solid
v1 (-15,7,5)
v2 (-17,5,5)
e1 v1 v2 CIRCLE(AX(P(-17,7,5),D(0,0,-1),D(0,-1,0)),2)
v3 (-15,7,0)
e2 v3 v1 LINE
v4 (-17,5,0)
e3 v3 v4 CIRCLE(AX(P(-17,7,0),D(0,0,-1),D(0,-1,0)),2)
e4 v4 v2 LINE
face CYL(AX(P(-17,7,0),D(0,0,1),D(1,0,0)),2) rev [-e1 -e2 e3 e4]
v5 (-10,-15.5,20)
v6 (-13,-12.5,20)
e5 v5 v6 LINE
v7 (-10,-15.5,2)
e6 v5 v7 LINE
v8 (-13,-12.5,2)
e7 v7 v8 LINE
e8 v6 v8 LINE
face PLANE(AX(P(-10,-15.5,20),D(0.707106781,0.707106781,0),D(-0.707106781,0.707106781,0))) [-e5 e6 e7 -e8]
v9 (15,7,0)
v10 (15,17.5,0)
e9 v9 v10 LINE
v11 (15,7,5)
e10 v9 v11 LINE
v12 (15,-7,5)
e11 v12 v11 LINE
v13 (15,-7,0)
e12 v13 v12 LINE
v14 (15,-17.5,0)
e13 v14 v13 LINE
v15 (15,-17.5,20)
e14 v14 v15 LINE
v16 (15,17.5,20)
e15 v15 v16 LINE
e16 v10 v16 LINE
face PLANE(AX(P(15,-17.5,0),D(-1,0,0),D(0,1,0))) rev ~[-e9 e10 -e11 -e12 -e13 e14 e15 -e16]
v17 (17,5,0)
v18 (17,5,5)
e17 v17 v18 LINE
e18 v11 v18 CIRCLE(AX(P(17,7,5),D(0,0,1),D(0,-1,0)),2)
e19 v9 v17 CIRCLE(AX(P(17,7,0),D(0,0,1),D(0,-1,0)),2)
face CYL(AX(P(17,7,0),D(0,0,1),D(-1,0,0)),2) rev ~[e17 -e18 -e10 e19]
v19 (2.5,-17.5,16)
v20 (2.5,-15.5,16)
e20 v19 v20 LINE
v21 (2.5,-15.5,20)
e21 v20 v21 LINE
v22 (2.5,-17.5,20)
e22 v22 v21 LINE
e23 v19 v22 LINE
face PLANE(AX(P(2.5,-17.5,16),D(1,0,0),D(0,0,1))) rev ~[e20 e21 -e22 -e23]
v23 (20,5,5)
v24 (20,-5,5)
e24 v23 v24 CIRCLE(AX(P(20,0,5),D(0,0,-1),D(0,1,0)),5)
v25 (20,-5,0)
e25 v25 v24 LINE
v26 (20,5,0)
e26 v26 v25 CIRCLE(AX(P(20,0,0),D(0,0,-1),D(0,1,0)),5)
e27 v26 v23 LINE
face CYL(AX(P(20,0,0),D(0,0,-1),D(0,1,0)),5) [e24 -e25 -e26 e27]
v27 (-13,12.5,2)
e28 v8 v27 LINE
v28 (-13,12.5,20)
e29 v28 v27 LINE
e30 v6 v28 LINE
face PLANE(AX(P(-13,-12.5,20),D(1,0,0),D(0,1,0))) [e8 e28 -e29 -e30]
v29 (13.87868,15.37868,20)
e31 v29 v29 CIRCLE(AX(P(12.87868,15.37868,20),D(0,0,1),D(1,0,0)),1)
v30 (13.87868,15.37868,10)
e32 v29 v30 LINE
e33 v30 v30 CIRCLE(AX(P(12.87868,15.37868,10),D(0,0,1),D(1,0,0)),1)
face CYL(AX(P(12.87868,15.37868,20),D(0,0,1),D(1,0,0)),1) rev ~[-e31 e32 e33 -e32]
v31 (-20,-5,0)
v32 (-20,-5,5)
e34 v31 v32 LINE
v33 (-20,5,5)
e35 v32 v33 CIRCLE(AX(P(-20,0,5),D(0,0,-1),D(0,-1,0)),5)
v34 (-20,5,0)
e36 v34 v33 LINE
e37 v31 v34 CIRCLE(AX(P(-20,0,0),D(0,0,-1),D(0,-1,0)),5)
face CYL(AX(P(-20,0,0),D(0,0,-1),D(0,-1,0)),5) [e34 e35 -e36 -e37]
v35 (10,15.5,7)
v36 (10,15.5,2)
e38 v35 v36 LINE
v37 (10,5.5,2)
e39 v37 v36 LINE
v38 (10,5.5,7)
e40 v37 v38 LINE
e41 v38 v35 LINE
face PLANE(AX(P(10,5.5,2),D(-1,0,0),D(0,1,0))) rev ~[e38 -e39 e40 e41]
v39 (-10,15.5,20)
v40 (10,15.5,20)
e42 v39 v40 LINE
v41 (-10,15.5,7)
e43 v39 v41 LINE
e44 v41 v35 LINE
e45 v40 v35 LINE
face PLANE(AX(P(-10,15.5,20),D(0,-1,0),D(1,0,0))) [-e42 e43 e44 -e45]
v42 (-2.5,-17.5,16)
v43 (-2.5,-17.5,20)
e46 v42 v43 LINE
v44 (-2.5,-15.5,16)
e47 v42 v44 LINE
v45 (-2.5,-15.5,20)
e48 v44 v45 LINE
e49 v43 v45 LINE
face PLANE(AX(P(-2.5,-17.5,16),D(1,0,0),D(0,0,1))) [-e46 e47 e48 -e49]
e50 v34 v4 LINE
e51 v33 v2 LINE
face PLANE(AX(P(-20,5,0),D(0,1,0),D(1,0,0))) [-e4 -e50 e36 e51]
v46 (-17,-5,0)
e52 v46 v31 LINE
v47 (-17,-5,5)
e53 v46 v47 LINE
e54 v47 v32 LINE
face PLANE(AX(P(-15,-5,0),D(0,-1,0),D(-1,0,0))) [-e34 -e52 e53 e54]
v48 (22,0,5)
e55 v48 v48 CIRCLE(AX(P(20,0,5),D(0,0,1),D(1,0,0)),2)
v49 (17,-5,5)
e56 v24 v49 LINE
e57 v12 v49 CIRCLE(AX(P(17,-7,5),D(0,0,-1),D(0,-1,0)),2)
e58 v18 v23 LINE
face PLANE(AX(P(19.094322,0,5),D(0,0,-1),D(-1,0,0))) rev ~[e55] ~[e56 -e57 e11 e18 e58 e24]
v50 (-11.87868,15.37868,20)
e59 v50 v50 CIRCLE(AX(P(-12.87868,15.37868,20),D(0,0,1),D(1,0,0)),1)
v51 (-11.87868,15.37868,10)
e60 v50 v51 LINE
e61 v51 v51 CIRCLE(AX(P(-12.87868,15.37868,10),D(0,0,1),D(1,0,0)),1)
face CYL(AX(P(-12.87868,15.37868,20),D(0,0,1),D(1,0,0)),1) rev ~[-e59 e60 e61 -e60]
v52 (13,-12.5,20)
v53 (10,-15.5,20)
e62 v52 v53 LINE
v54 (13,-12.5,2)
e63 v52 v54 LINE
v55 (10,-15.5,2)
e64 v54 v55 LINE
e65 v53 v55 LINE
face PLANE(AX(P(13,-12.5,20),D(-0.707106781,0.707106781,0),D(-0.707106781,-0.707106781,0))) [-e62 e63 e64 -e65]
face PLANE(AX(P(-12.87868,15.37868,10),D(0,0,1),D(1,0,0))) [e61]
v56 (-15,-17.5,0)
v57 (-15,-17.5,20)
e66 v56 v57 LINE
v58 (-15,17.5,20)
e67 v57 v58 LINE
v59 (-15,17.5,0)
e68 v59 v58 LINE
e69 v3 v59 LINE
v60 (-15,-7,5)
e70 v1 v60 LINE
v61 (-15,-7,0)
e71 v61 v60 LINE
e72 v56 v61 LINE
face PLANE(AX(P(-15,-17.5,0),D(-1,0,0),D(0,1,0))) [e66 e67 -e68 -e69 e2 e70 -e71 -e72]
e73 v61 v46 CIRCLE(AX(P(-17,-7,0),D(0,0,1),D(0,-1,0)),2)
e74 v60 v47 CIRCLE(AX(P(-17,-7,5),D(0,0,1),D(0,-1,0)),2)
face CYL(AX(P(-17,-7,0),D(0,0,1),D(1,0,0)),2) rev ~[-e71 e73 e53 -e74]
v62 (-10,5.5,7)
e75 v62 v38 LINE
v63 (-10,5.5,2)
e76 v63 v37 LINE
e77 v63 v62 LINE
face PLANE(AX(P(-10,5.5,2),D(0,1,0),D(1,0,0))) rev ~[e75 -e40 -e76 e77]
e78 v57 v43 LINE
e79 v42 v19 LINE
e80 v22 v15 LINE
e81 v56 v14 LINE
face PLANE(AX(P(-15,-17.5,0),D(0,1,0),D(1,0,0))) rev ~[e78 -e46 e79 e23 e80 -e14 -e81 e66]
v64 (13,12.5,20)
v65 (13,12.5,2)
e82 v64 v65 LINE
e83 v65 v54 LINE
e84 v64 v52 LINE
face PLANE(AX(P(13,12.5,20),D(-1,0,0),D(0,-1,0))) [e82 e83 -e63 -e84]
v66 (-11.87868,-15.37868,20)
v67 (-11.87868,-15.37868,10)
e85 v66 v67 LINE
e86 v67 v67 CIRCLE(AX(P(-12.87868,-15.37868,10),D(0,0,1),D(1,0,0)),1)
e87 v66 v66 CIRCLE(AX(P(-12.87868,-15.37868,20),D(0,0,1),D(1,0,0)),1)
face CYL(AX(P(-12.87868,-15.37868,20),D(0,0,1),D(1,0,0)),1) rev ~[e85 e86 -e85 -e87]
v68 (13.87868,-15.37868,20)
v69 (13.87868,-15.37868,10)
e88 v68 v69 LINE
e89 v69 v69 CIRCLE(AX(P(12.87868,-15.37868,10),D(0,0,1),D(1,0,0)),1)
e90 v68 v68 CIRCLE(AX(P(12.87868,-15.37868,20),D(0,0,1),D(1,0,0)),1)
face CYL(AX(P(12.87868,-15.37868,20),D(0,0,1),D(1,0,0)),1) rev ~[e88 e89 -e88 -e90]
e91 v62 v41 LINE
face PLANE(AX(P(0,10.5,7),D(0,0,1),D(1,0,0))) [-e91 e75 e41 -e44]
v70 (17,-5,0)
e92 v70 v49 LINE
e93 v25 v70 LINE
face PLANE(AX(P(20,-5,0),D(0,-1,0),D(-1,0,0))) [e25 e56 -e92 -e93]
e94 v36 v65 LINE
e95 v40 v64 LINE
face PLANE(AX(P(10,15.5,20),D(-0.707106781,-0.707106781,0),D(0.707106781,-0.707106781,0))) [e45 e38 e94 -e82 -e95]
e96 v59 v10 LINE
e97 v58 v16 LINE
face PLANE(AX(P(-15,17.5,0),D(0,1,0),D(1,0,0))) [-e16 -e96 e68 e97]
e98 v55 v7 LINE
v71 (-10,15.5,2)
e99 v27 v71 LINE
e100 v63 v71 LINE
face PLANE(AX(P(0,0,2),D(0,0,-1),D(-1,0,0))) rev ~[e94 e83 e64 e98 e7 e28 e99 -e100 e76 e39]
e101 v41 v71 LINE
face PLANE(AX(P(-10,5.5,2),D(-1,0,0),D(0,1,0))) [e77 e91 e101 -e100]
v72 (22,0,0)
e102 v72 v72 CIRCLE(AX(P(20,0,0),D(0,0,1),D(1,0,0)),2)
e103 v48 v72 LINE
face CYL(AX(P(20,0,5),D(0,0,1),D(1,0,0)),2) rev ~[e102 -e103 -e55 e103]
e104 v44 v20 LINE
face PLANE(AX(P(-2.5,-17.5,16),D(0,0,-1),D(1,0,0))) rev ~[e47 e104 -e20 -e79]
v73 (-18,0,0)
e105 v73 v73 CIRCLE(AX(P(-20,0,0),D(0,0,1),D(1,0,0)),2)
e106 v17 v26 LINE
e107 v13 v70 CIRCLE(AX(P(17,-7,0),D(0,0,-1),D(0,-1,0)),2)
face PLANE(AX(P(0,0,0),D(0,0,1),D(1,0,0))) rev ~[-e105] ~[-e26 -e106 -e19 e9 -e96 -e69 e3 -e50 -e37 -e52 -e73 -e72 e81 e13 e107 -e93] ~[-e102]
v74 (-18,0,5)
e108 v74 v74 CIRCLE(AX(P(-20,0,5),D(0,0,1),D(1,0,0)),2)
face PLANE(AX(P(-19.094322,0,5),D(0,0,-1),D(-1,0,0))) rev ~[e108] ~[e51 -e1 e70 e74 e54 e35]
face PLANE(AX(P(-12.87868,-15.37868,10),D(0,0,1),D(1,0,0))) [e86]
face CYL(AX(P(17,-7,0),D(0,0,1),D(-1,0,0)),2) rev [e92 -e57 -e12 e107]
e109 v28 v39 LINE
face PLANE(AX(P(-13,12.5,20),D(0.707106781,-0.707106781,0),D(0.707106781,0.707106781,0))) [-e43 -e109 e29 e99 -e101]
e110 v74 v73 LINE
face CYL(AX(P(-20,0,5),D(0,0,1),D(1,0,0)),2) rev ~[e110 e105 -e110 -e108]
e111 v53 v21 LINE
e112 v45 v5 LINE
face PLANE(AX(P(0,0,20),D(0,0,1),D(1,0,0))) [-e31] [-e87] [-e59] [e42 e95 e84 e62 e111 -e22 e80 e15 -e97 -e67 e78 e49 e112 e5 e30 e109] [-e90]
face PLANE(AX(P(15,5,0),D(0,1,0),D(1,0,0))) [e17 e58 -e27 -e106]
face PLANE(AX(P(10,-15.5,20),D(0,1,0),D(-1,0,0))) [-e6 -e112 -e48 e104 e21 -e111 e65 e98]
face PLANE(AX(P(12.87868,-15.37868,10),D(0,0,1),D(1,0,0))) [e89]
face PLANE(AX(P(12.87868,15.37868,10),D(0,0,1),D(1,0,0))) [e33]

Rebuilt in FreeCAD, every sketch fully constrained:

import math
import FreeCAD as App
import Part
import Sketcher

V = App.Vector
Q = App.Units.Quantity


def edges_at(feature, points):
    """Names of the edges that pass closest to the given points."""
    edges = feature.Shape.Edges
    near = lambda p: min(range(len(edges)), key=lambda i: edges[i].distToShape(Part.Vertex(*p))[0])
    return sorted({f"Edge{near(p) + 1}" for p in points})

doc = App.newDocument("Part")
body = doc.addObject("PartDesign::Body", "Body")

# Sketch on XY plane
sketch1 = body.newObject("Sketcher::SketchObject", "Sketch")
sketch1.AttachmentSupport = (doc.getObject("XY_Plane"), [""])
sketch1.MapMode = "FlatFace"
sketch1.addGeometry([
    Part.LineSegment(V(-15, 18, 0), V(-15, -18, 0)),
    Part.LineSegment(V(-15, -18, 0), V(15, -18, 0)),
    Part.LineSegment(V(15, -18, 0), V(15, 18, 0)),
    Part.LineSegment(V(15, 18, 0), V(-15, 18, 0)),
], False)
sketch1.addConstraint([
    Sketcher.Constraint("Coincident", 0, 2, 1, 1),
    Sketcher.Constraint("Coincident", 1, 2, 2, 1),
    Sketcher.Constraint("Coincident", 2, 2, 3, 1),
    Sketcher.Constraint("Coincident", 3, 2, 0, 1),
    Sketcher.Constraint("Vertical", 0),
    Sketcher.Constraint("Horizontal", 1),
    Sketcher.Constraint("Vertical", 2),
    Sketcher.Constraint("Horizontal", 3),
    Sketcher.Constraint("Symmetric", 0, 2, 2, 2, -1, 1),
    Sketcher.Constraint("DistanceX", 1, 1, 1, 2, Q("30 mm")),
    Sketcher.Constraint("DistanceY", 0, 2, 0, 1, Q("35 mm")),
])
pad1 = body.newObject("PartDesign::Pad", "Pad")
pad1.Profile = sketch1
pad1.Length = 20

# Sketch on XY plane
sketch2 = body.newObject("Sketcher::SketchObject", "Sketch001")
sketch2.AttachmentSupport = (doc.getObject("XY_Plane"), [""])
sketch2.MapMode = "FlatFace"
sketch2.AttachmentOffset = App.Placement(V(0, 0, 20), App.Rotation())
sketch2.addGeometry([
    Part.LineSegment(V(10, 15.5, 0), V(-10, 15.5, 0)),  # 0
    Part.LineSegment(V(-10, 15.5, 0), V(-13, 12.5, 0)),  # 1
    Part.LineSegment(V(-13, 12.5, 0), V(-13, -12.5, 0)),  # 2
    Part.LineSegment(V(-13, -12.5, 0), V(-10, -15.5, 0)),  # 3
    Part.LineSegment(V(-10, -15.5, 0), V(10, -15.5, 0)),  # 4
    Part.LineSegment(V(10, -15.5, 0), V(13, -12.5, 0)),  # 5
    Part.LineSegment(V(13, -12.5, 0), V(13, 12.5, 0)),  # 6
    Part.LineSegment(V(13, 12.5, 0), V(10, 15.5, 0)),  # 7
], False)
sketch2.addConstraint([
    Sketcher.Constraint("Coincident", 0, 2, 1, 1),
    Sketcher.Constraint("Coincident", 1, 2, 2, 1),
    Sketcher.Constraint("Coincident", 2, 2, 3, 1),
    Sketcher.Constraint("Coincident", 3, 2, 4, 1),
    Sketcher.Constraint("Coincident", 4, 2, 5, 1),
    Sketcher.Constraint("Coincident", 5, 2, 6, 1),
    Sketcher.Constraint("Coincident", 6, 2, 7, 1),
    Sketcher.Constraint("Coincident", 7, 2, 0, 1),
    Sketcher.Constraint("Horizontal", 0),
    Sketcher.Constraint("Vertical", 2),
    Sketcher.Constraint("Horizontal", 4),
    Sketcher.Constraint("Vertical", 6),
    Sketcher.Constraint("Symmetric", 0, 2, 4, 2, -1, 1),
    Sketcher.Constraint("Symmetric", 1, 2, 5, 2, -1, 1),
    Sketcher.Constraint("Perpendicular", 1, 3),
    Sketcher.Constraint("Perpendicular", 5, 7),
    Sketcher.Constraint("Horizontal", 2, 2, 5, 2),
    Sketcher.Constraint("Horizontal", 1, 2, 6, 2),
    Sketcher.Constraint("Vertical", 0, 2, 3, 2),
    Sketcher.Constraint("DistanceX", 0, 2, 0, 1, Q("20 mm")),
    Sketcher.Constraint("DistanceY", 2, 2, 2, 1, Q("25 mm")),
    Sketcher.Constraint("DistanceX", 1, 2, -1, 1, Q("13 mm")),
])
pocket1 = body.newObject("PartDesign::Pocket", "Pocket")
pocket1.Profile = sketch2
pocket1.Length = 18

# Sketch on XY plane
sketch3 = body.newObject("Sketcher::SketchObject", "Sketch002")
sketch3.AttachmentSupport = (doc.getObject("XY_Plane"), [""])
sketch3.MapMode = "FlatFace"
sketch3.addGeometry([
    Part.LineSegment(V(15, 5, 0), V(20, 5, 0)),  # 0
    Part.ArcOfCircle(Part.Circle(V(20, 0, 0), V(0, 0, 1), 5), math.radians(-90), math.radians(90)),  # 1
    Part.LineSegment(V(20, -5, 0), V(15, -5, 0)),  # 2
    Part.LineSegment(V(15, -5, 0), V(15, 5, 0)),  # 3
    Part.LineSegment(V(-15, 5, 0), V(-15, -5, 0)),  # 4
    Part.LineSegment(V(-15, -5, 0), V(-20, -5, 0)),  # 5
    Part.ArcOfCircle(Part.Circle(V(-20, 0, 0), V(0, 0, 1), 5), math.radians(90), math.radians(270)),  # 6
    Part.LineSegment(V(-20, 5, 0), V(-15, 5, 0)),  # 7
], False)
sketch3.addConstraint([
    Sketcher.Constraint("Tangent", 0, 2, 1, 2),
    Sketcher.Constraint("Tangent", 1, 1, 2, 1),
    Sketcher.Constraint("Coincident", 2, 2, 3, 1),
    Sketcher.Constraint("Coincident", 3, 2, 0, 1),
    Sketcher.Constraint("Coincident", 4, 2, 5, 1),
    Sketcher.Constraint("Tangent", 5, 2, 6, 2),
    Sketcher.Constraint("Tangent", 6, 1, 7, 1),
    Sketcher.Constraint("Coincident", 7, 2, 4, 1),
    Sketcher.Constraint("Horizontal", 0),
    Sketcher.Constraint("Horizontal", 2),
    Sketcher.Constraint("Vertical", 3),
    Sketcher.Constraint("Vertical", 4),
    Sketcher.Constraint("Horizontal", 5),
    Sketcher.Constraint("Horizontal", 7),
    Sketcher.Constraint("Equal", 1, 6),
    Sketcher.Constraint("Symmetric", 1, 3, 6, 3, -1, 1),
    Sketcher.Constraint("Symmetric", 2, 2, 4, 2, -2),
    Sketcher.Constraint("Radius", 1, Q("5 mm")),
    Sketcher.Constraint("DistanceX", 0, 1, 0, 2, Q("5 mm")),
    Sketcher.Constraint("DistanceX", -1, 1, 1, 3, Q("20 mm")),
])
pad2 = body.newObject("PartDesign::Pad", "Pad001")
pad2.Profile = sketch3
pad2.Length = 5

# Sketch on XY plane
sketch4 = body.newObject("Sketcher::SketchObject", "Sketch003")
sketch4.AttachmentSupport = (doc.getObject("XY_Plane"), [""])
sketch4.MapMode = "FlatFace"
sketch4.AttachmentOffset = App.Placement(V(0, 0, 5), App.Rotation())
sketch4.addGeometry(Part.Circle(V(-20, 0, 0), V(0, 0, 1), 2), False)
sketch4.addConstraint([
    Sketcher.Constraint("PointOnObject", 0, 3, -1),
    Sketcher.Constraint("Diameter", 0, Q("4 mm")),
    Sketcher.Constraint("DistanceX", 0, 3, -1, 1, Q("20 mm")),
])
pocket2 = body.newObject("PartDesign::Pocket", "Pocket001")
pocket2.Profile = sketch4
pocket2.Type = "UpToFirst"

# Sketch on XY plane
sketch5 = body.newObject("Sketcher::SketchObject", "Sketch004")
sketch5.AttachmentSupport = (doc.getObject("XY_Plane"), [""])
sketch5.MapMode = "FlatFace"
sketch5.AttachmentOffset = App.Placement(V(0, 0, 5), App.Rotation())
sketch5.addGeometry(Part.Circle(V(20, 0, 0), V(0, 0, 1), 2), False)
sketch5.addConstraint([
    Sketcher.Constraint("PointOnObject", 0, 3, -1),
    Sketcher.Constraint("Diameter", 0, Q("4 mm")),
    Sketcher.Constraint("DistanceX", -1, 1, 0, 3, Q("20 mm")),
])
pocket3 = body.newObject("PartDesign::Pocket", "Pocket002")
pocket3.Profile = sketch5
pocket3.Type = "UpToFirst"

# Sketch on XY plane
sketch6 = body.newObject("Sketcher::SketchObject", "Sketch005")
sketch6.AttachmentSupport = (doc.getObject("XY_Plane"), [""])
sketch6.MapMode = "FlatFace"
sketch6.AttachmentOffset = App.Placement(V(0, 0, 2), App.Rotation())
sketch6.addGeometry([
    Part.LineSegment(V(-10, 16, 0), V(-10, 6, 0)),
    Part.LineSegment(V(-10, 6, 0), V(10, 6, 0)),
    Part.LineSegment(V(10, 6, 0), V(10, 16, 0)),
    Part.LineSegment(V(10, 16, 0), V(-10, 16, 0)),
], False)
sketch6.addConstraint([
    Sketcher.Constraint("Coincident", 0, 2, 1, 1),
    Sketcher.Constraint("Coincident", 1, 2, 2, 1),
    Sketcher.Constraint("Coincident", 2, 2, 3, 1),
    Sketcher.Constraint("Coincident", 3, 2, 0, 1),
    Sketcher.Constraint("Vertical", 0),
    Sketcher.Constraint("Horizontal", 1),
    Sketcher.Constraint("Vertical", 2),
    Sketcher.Constraint("Horizontal", 3),
    Sketcher.Constraint("DistanceX", 1, 1, 1, 2, Q("20 mm")),
    Sketcher.Constraint("DistanceY", 0, 2, 0, 1, Q("10 mm")),
    Sketcher.Constraint("DistanceX", 0, 2, -1, 1, Q("10 mm")),
    Sketcher.Constraint("DistanceY", -1, 1, 0, 2, Q("5.5 mm")),
])
pad3 = body.newObject("PartDesign::Pad", "Pad002")
pad3.Profile = sketch6
pad3.Length = 5

# Sketch on XZ plane
sketch7 = body.newObject("Sketcher::SketchObject", "Sketch006")
sketch7.AttachmentSupport = (doc.getObject("XZ_Plane"), [""])
sketch7.MapMode = "FlatFace"
sketch7.AttachmentOffset = App.Placement(V(0, 0, 17.5), App.Rotation())
sketch7.addGeometry([
    Part.LineSegment(V(-2.5, 20, 0), V(-2.5, 16, 0)),
    Part.LineSegment(V(-2.5, 16, 0), V(2.5, 16, 0)),
    Part.LineSegment(V(2.5, 16, 0), V(2.5, 20, 0)),
    Part.LineSegment(V(2.5, 20, 0), V(-2.5, 20, 0)),
], False)
sketch7.addConstraint([
    Sketcher.Constraint("Coincident", 0, 2, 1, 1),
    Sketcher.Constraint("Coincident", 1, 2, 2, 1),
    Sketcher.Constraint("Coincident", 2, 2, 3, 1),
    Sketcher.Constraint("Coincident", 3, 2, 0, 1),
    Sketcher.Constraint("Vertical", 0),
    Sketcher.Constraint("Horizontal", 1),
    Sketcher.Constraint("Vertical", 2),
    Sketcher.Constraint("Horizontal", 3),
    Sketcher.Constraint("DistanceX", 1, 1, 1, 2, Q("5 mm")),
    Sketcher.Constraint("DistanceY", 0, 2, 0, 1, Q("4 mm")),
    Sketcher.Constraint("DistanceY", -1, 1, 0, 2, Q("16 mm")),
    Sketcher.Constraint("DistanceX", 0, 2, -1, 1, Q("2.5 mm")),
])
pocket4 = body.newObject("PartDesign::Pocket", "Pocket003")
pocket4.Profile = sketch7
pocket4.Type = "UpToFirst"
doc.recompute()

fillet = body.newObject("PartDesign::Fillet", "Fillet")
fillet.Base = (pocket4, edges_at(pocket4, [
    (15, -5, 2.5),
    (15, 5, 2.5),
    (-15, 5, 2.5),
    (-15, -5, 2.5),
]))
fillet.Radius = 2

# Sketch on XY plane
sketch8 = body.newObject("Sketcher::SketchObject", "Sketch007")
sketch8.AttachmentSupport = (doc.getObject("XY_Plane"), [""])
sketch8.MapMode = "FlatFace"
sketch8.AttachmentOffset = App.Placement(V(0, 0, 20), App.Rotation())
sketch8.addGeometry([
    Part.Circle(V(-12.9, 15.4, 0), V(0, 0, 1), 1),
    Part.Circle(V(-12.9, -15.4, 0), V(0, 0, 1), 1),
    Part.Circle(V(12.9, -15.4, 0), V(0, 0, 1), 1),
    Part.Circle(V(12.9, 15.4, 0), V(0, 0, 1), 1),
], False)
sketch8.addConstraint([
    Sketcher.Constraint("Equal", 0, 1),
    Sketcher.Constraint("Equal", 1, 2),
    Sketcher.Constraint("Equal", 2, 3),
    Sketcher.Constraint("Symmetric", 0, 3, 2, 3, -1, 1),
    Sketcher.Constraint("Symmetric", 1, 3, 3, 3, -1, 1),
    Sketcher.Constraint("Symmetric", 1, 3, 2, 3, -2),
    Sketcher.Constraint("Diameter", 0, Q("2 mm")),
    Sketcher.Constraint("DistanceX", 0, 3, -1, 1, Q("12.87868 mm")),
    Sketcher.Constraint("DistanceY", -1, 1, 0, 3, Q("15.37868 mm")),
])
pocket5 = body.newObject("PartDesign::Pocket", "Pocket004")
pocket5.Profile = sketch8
pocket5.Length = 10

doc.recompute()
